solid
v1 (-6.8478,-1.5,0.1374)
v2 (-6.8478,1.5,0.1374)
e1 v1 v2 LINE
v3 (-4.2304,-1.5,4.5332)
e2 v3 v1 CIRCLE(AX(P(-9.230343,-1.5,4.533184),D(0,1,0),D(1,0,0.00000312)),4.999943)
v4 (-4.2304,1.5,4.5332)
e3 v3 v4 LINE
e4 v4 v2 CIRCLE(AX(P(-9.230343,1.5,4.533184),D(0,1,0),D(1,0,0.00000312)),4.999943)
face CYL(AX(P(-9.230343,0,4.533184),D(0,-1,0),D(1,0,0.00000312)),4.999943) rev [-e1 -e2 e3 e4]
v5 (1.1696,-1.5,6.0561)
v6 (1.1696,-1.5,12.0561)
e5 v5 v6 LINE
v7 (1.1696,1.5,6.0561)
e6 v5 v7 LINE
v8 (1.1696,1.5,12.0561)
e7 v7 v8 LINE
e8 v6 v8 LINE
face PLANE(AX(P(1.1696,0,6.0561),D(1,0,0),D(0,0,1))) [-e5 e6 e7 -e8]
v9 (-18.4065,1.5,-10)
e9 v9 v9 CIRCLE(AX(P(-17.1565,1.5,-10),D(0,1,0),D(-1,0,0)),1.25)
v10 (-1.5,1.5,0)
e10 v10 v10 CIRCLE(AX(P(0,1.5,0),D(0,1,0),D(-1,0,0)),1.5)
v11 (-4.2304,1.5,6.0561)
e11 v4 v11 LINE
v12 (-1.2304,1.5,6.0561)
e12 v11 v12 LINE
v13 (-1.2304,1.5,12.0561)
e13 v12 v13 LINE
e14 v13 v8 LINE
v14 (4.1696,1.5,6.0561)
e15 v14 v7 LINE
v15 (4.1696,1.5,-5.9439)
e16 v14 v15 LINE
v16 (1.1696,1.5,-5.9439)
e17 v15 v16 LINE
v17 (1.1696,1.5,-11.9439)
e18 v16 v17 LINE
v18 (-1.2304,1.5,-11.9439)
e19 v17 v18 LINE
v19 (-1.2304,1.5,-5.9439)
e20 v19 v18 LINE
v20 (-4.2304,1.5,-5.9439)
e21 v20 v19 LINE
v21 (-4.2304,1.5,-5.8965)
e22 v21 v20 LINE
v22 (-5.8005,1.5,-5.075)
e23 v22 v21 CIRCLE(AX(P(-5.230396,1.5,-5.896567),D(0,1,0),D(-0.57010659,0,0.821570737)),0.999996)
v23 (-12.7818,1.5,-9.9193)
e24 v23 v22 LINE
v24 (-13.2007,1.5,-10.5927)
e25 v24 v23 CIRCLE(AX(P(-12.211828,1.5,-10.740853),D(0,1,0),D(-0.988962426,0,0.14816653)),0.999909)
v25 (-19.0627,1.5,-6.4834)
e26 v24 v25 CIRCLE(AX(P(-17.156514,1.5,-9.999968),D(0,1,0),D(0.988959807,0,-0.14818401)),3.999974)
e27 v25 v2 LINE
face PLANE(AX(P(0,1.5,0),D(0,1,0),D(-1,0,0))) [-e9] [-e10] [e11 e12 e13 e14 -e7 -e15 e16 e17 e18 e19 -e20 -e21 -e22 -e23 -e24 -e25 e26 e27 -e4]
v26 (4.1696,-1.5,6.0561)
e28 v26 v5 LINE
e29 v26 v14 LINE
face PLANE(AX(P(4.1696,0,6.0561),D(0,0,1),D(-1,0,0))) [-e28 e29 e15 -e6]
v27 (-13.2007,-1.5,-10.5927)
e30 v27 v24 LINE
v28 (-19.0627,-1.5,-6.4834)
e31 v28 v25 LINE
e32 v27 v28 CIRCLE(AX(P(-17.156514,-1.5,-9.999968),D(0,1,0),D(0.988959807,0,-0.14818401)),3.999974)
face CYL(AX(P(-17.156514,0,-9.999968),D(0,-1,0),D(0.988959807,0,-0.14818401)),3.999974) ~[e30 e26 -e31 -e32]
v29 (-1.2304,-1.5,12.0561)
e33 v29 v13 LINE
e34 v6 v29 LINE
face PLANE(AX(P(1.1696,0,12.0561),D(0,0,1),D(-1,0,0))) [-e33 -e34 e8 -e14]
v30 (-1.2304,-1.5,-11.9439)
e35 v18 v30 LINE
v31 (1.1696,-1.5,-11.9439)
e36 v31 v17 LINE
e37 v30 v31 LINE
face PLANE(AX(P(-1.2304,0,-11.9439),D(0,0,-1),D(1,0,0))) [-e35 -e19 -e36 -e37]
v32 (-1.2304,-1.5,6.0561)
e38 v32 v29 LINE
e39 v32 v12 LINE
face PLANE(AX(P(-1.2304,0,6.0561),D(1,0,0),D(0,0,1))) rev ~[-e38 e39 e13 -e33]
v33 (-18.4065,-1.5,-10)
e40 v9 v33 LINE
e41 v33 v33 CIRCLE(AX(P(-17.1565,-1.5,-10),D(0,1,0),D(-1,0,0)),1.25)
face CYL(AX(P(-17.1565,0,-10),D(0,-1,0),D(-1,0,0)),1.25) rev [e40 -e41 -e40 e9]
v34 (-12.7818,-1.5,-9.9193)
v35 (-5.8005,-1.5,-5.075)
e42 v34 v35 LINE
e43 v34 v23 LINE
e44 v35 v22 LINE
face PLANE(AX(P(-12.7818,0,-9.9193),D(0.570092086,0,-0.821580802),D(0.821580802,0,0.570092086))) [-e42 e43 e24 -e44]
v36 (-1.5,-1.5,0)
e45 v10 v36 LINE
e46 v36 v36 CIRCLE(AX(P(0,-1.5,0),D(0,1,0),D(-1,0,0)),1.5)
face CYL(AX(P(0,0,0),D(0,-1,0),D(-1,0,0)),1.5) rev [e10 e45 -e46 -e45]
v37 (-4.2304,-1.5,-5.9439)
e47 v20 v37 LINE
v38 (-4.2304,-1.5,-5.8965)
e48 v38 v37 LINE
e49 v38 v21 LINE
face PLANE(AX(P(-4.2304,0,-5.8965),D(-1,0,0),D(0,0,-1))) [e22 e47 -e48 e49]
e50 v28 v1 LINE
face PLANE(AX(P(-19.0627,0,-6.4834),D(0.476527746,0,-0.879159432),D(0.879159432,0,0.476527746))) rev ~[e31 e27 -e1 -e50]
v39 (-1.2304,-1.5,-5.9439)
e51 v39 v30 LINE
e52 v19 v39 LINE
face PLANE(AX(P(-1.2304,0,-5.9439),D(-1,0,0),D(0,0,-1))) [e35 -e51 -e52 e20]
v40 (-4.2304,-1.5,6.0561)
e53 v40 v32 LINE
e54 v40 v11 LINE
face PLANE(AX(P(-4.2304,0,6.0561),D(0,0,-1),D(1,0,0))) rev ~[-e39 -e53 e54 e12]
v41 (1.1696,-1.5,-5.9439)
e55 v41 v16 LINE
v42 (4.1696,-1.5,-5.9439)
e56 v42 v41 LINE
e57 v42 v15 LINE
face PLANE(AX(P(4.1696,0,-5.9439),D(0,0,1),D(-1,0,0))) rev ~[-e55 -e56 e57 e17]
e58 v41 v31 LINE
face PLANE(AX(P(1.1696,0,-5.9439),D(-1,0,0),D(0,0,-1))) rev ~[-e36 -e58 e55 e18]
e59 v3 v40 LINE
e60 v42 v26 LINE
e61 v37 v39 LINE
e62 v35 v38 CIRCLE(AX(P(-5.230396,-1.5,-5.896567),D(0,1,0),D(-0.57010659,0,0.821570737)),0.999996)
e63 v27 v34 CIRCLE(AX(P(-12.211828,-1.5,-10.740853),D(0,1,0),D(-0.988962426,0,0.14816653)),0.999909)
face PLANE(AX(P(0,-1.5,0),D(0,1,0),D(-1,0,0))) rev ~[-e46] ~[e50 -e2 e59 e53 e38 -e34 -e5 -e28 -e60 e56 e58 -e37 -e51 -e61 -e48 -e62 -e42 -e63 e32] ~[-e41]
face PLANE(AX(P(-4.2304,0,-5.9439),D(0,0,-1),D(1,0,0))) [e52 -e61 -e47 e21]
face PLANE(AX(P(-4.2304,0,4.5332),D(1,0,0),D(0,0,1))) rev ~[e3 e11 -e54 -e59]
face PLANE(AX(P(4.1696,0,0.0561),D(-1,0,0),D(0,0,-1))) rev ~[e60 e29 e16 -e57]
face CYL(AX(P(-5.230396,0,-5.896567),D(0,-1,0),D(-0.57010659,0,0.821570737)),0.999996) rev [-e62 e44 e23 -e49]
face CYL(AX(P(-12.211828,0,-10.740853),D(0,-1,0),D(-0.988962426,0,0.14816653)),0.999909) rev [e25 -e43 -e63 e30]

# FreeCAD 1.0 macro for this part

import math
import FreeCAD as App
import Part
import Sketcher

V = App.Vector

doc = App.newDocument("Part")
body = doc.addObject("PartDesign::Body", "Body")

# Sketch on XZ plane
sketch1 = doc.addObject("Sketcher::SketchObject", "Sketch")
body.addObject(sketch1)
sketch1.AttachmentSupport = (doc.XZ_Plane, [""])
sketch1.MapMode = "FlatFace"
sketch1.addGeometry(Part.LineSegment(V(-4.2304, -5.9439, 0), V(-4.2304, -5.8965, 0)), False)
sketch1.addGeometry(Part.ArcOfCircle(Part.Circle(V(-5.2304, -5.8965, 0), V(0, 0, 1), 0.999938), math.radians(0), math.radians(124.759659)), False)
sketch1.addGeometry(Part.LineSegment(V(-5.8005, -5.075, 0), V(-12.7818, -9.9193, 0)), False)
sketch1.addGeometry(Part.ArcOfCircle(Part.Circle(V(-12.2117, -10.7409, 0), V(0, 0, 1), 1.000042), math.radians(124.756393), math.radians(171.477733)), False)
sketch1.addGeometry(Part.ArcOfCircle(Part.Circle(V(-17.1565, -10, 0), V(0, 0, 1), 3.999956), math.radians(118.460247), math.radians(351.478725)), False)
sketch1.addGeometry(Part.LineSegment(V(-19.0627, -6.4834, 0), V(-6.8478, 0.1374, 0)), False)
sketch1.addGeometry(Part.ArcOfCircle(Part.Circle(V(-9.2304, 4.5332, 0), V(0, 0, 1), 5), math.radians(-61.541538), math.radians(0)), False)
sketch1.addGeometry(Part.LineSegment(V(-4.2304, 4.5332, 0), V(-4.2304, 6.0561, 0)), False)
sketch1.addGeometry(Part.LineSegment(V(-4.2304, 6.0561, 0), V(-1.2304, 6.0561, 0)), False)
sketch1.addGeometry(Part.LineSegment(V(-1.2304, 6.0561, 0), V(-1.2304, 12.0561, 0)), False)
sketch1.addGeometry(Part.LineSegment(V(-1.2304, 12.0561, 0), V(1.1696, 12.0561, 0)), False)
sketch1.addGeometry(Part.LineSegment(V(1.1696, 12.0561, 0), V(1.1696, 6.0561, 0)), False)
sketch1.addGeometry(Part.LineSegment(V(1.1696, 6.0561, 0), V(4.1696, 6.0561, 0)), False)
sketch1.addGeometry(Part.LineSegment(V(4.1696, 6.0561, 0), V(4.1696, -5.9439, 0)), False)
sketch1.addGeometry(Part.LineSegment(V(4.1696, -5.9439, 0), V(1.1696, -5.9439, 0)), False)
sketch1.addGeometry(Part.LineSegment(V(1.1696, -5.9439, 0), V(1.1696, -11.9439, 0)), False)
sketch1.addGeometry(Part.LineSegment(V(1.1696, -11.9439, 0), V(-1.2304, -11.9439, 0)), False)
sketch1.addGeometry(Part.LineSegment(V(-1.2304, -11.9439, 0), V(-1.2304, -5.9439, 0)), False)
sketch1.addGeometry(Part.LineSegment(V(-1.2304, -5.9439, 0), V(-4.2304, -5.9439, 0)), False)
sketch1.addGeometry(Part.Circle(V(-17.1565, -10, 0), V(0, 0, 1), 1.25), False)
sketch1.addGeometry(Part.Circle(V(0, 0, 0), V(0, 0, 1), 1.5), False)
sketch1.addConstraint(Sketcher.Constraint("Coincident", 0, 2, 1, 1))
sketch1.addConstraint(Sketcher.Constraint("Coincident", 1, 2, 2, 1))
sketch1.addConstraint(Sketcher.Constraint("Coincident", 2, 2, 3, 1))
sketch1.addConstraint(Sketcher.Constraint("Coincident", 3, 2, 4, 2))
sketch1.addConstraint(Sketcher.Constraint("Coincident", 4, 1, 5, 1))
sketch1.addConstraint(Sketcher.Constraint("Coincident", 5, 2, 6, 1))
sketch1.addConstraint(Sketcher.Constraint("Coincident", 6, 2, 7, 1))
sketch1.addConstraint(Sketcher.Constraint("Coincident", 7, 2, 8, 1))
sketch1.addConstraint(Sketcher.Constraint("Coincident", 8, 2, 9, 1))
sketch1.addConstraint(Sketcher.Constraint("Coincident", 9, 2, 10, 1))
sketch1.addConstraint(Sketcher.Constraint("Coincident", 10, 2, 11, 1))
sketch1.addConstraint(Sketcher.Constraint("Coincident", 11, 2, 12, 1))
sketch1.addConstraint(Sketcher.Constraint("Coincident", 12, 2, 13, 1))
sketch1.addConstraint(Sketcher.Constraint("Coincident", 13, 2, 14, 1))
sketch1.addConstraint(Sketcher.Constraint("Coincident", 14, 2, 15, 1))
sketch1.addConstraint(Sketcher.Constraint("Coincident", 15, 2, 16, 1))
sketch1.addConstraint(Sketcher.Constraint("Coincident", 16, 2, 17, 1))
sketch1.addConstraint(Sketcher.Constraint("Coincident", 17, 2, 18, 1))
sketch1.addConstraint(Sketcher.Constraint("Coincident", 18, 2, 0, 1))
sketch1.addConstraint(Sketcher.Constraint("Vertical", 0))
sketch1.addConstraint(Sketcher.Constraint("Vertical", 7))
sketch1.addConstraint(Sketcher.Constraint("Horizontal", 8))
sketch1.addConstraint(Sketcher.Constraint("Vertical", 9))
sketch1.addConstraint(Sketcher.Constraint("Horizontal", 10))
sketch1.addConstraint(Sketcher.Constraint("Vertical", 11))
sketch1.addConstraint(Sketcher.Constraint("Horizontal", 12))
sketch1.addConstraint(Sketcher.Constraint("Vertical", 13))
sketch1.addConstraint(Sketcher.Constraint("Horizontal", 14))
sketch1.addConstraint(Sketcher.Constraint("Vertical", 15))
sketch1.addConstraint(Sketcher.Constraint("Horizontal", 16))
sketch1.addConstraint(Sketcher.Constraint("Vertical", 17))
sketch1.addConstraint(Sketcher.Constraint("Horizontal", 18))
sketch1.addConstraint(Sketcher.Constraint("Coincident", 20, 3, -1, 1))
sketch1.addConstraint(Sketcher.Constraint("Coincident", 19, 3, 4, 3))
sketch1.addConstraint(Sketcher.Constraint("Diameter", 20, 3.0))
sketch1.addConstraint(Sketcher.Constraint("Radius", 1, 1.0))
sketch1.addConstraint(Sketcher.Constraint("Radius", 3, 1.0))
sketch1.addConstraint(Sketcher.Constraint("Radius", 4, 4.0))
sketch1.addConstraint(Sketcher.Constraint("Radius", 6, 5.0))
sketch1.addConstraint(Sketcher.Constraint("Diameter", 19, 2.5))
sketch1.addConstraint(Sketcher.Constraint("DistanceX", 8, 1, 8, 2, 3.0))
sketch1.addConstraint(Sketcher.Constraint("DistanceX", 12, 1, 12, 2, 3.0))
sketch1.addConstraint(Sketcher.Constraint("DistanceX", 14, 2, 14, 1, 3.0))
sketch1.addConstraint(Sketcher.Constraint("DistanceX", 18, 2, 18, 1, 3.0))
sketch1.addConstraint(Sketcher.Constraint("DistanceY", 9, 1, 9, 2, 6.0))
sketch1.addConstraint(Sketcher.Constraint("DistanceY", 11, 2, 11, 1, 6.0))
sketch1.addConstraint(Sketcher.Constraint("DistanceY", 15, 2, 15, 1, 6.0))
sketch1.addConstraint(Sketcher.Constraint("DistanceY", 17, 1, 17, 2, 6.0))
sketch1.addConstraint(Sketcher.Constraint("DistanceX", 6, 3, 0, 2, 5.0))
sketch1.addConstraint(Sketcher.Constraint("DistanceY", 13, 2, 13, 1, 12.0))
sketch1.addConstraint(Sketcher.Constraint("DistanceX", 10, 1, 10, 2, 2.4))
sketch1.addConstraint(Sketcher.Constraint("DistanceY", 4, 3, -1, 1, 10.0))
sketch1.addConstraint(Sketcher.Constraint("DistanceY", 7, 1, 7, 2, 1.523))
sketch1.addConstraint(Sketcher.Constraint("DistanceX", 1, 2, 1, 3, 0.57))
sketch1.addConstraint(Sketcher.Constraint("DistanceX", 2, 2, 3, 3, 0.57))
sketch1.addConstraint(Sketcher.Constraint("DistanceY", 0, 1, 0, 2, 0.0474))
sketch1.addConstraint(Sketcher.Constraint("DistanceY", 3, 3, -1, 1, 10.741))
sketch1.addConstraint(Sketcher.Constraint("DistanceY", 1, 2, -1, 1, 5.075))
sketch1.addConstraint(Sketcher.Constraint("DistanceY", -1, 1, 7, 2, 6.056))
sketch1.addConstraint(Sketcher.Constraint("DistanceX", 4, 3, 1, 3, 11.926))
sketch1.addConstraint(Sketcher.Constraint("DistanceY", 3, 3, 6, 3, 15.274))
sketch1.addConstraint(Sketcher.Constraint("DistanceX", 3, 2, 2, 2, 0.419))
sketch1.addConstraint(Sketcher.Constraint("DistanceX", 4, 1, 3, 2, 5.862))
sketch1.addConstraint(Sketcher.Constraint("DistanceY", 1, 3, 5, 2, 6.034))
sketch1.addConstraint(Sketcher.Constraint("DistanceX", 1, 3, -1, 1, 5.2304))
pad1 = doc.addObject("PartDesign::Pad", "Pad")
body.addObject(pad1)
pad1.Profile = sketch1
pad1.Length = 3
pad1.Midplane = True

doc.recompute()
